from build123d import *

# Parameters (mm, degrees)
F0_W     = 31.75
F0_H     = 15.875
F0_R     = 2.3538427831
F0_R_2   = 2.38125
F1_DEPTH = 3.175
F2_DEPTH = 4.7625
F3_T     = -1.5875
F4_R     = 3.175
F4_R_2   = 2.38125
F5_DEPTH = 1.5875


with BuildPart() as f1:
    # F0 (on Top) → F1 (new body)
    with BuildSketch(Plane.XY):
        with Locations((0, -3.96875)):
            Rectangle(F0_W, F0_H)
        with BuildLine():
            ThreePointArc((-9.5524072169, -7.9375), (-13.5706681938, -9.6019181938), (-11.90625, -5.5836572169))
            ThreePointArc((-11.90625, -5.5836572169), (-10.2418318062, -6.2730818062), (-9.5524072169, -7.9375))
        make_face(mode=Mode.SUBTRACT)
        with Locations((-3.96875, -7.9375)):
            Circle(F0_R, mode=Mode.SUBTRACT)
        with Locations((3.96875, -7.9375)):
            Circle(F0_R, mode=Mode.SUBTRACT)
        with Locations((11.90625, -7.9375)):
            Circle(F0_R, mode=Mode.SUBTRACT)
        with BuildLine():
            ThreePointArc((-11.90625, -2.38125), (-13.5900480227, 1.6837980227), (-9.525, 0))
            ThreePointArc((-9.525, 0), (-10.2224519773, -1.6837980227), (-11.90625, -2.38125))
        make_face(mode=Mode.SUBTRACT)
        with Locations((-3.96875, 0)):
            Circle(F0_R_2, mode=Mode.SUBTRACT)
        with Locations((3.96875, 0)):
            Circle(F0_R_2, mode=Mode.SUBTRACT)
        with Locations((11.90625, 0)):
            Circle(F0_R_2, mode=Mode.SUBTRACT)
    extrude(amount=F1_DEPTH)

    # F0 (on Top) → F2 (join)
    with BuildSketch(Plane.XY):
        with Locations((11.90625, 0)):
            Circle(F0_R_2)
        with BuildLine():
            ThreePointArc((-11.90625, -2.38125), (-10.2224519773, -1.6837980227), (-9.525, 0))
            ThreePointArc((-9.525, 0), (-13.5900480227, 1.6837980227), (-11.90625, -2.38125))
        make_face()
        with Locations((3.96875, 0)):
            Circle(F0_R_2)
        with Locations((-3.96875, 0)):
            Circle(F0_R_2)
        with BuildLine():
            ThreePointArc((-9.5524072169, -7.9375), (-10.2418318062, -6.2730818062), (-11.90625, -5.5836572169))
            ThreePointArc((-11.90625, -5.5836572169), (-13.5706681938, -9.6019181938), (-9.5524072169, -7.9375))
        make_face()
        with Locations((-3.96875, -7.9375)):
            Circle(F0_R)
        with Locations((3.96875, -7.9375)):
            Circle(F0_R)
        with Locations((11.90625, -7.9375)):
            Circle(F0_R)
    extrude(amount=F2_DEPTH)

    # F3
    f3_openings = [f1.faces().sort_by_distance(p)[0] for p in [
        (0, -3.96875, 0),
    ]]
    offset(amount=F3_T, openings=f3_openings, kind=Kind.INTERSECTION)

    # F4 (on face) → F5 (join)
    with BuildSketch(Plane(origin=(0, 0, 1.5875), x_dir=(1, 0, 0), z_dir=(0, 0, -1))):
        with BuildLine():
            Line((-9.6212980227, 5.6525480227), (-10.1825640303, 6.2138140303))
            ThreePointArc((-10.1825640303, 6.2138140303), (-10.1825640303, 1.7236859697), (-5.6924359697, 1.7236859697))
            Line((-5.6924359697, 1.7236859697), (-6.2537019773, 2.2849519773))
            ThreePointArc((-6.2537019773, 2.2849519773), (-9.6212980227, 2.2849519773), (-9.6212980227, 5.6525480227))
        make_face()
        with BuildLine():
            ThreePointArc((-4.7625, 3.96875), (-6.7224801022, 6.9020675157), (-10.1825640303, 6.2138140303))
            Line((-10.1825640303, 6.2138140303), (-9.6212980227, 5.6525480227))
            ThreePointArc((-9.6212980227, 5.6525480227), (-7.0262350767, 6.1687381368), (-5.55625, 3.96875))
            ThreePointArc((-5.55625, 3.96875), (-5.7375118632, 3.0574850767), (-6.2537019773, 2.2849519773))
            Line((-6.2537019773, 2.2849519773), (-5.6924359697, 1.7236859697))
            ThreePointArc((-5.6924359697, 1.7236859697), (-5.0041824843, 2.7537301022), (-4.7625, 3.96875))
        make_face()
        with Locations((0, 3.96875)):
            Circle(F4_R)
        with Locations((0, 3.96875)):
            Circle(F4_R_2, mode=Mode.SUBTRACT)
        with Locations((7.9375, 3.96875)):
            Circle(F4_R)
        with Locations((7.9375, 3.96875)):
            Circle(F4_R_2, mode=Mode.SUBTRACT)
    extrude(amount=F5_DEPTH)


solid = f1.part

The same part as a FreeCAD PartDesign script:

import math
import FreeCAD as App
import Part
import Sketcher
Q = App.Units.Quantity


def faces_at(feature, points):
    """Names of the faces that lie closest to the given points."""
    faces = feature.Shape.Faces
    near = lambda p: min(range(len(faces)), key=lambda i: faces[i].distToShape(Part.Vertex(*p))[0])
    return sorted({f"Face{near(p) + 1}" for p in points})

doc = App.newDocument("Part")
params = doc.addObject("Spreadsheet::Sheet", "Params")
for row, (alias, value) in enumerate([
    ("sketch1_diameter", "0.1875 in"),
    ("sketch1_width", "1.25 in"),
    ("sketch1_height", "0.625 in"),
    ("pad1_length", "0.125 in"),
    ("sketch2_diameter", "0.1875 in"),
    ("pad2_length", "0.1875 in"),
    ("thickness_wall", "0.0625 in"),
    ("sketch3_diameter", "0.25 in"),
    ("sketch3_diameter2", "0.1875 in"),
    ("pad3_length", "0.0625 in"),
], start=1):
    params.set(f"A{row}", alias)
    params.set(f"B{row}", "=" + value)
    params.setAlias(f"B{row}", alias)

body = doc.addObject("PartDesign::Body", "Body")

# Sketch on XY plane
sketch1 = doc.addObject("Sketcher::SketchObject", "Sketch")
body.addObject(sketch1)
sketch1.AttachmentSupport = (doc.XY_Plane, [""])
sketch1.MapMode = "FlatFace"
sketch1.addGeometry([
    Part.LineSegment(App.Vector(-15.9, 4, 0), App.Vector(-15.9, -11.9, 0)),  # 0
    Part.LineSegment(App.Vector(-15.9, -11.9, 0), App.Vector(15.9, -11.9, 0)),  # 1
    Part.LineSegment(App.Vector(15.9, -11.9, 0), App.Vector(15.9, 4, 0)),  # 2
    Part.LineSegment(App.Vector(15.9, 4, 0), App.Vector(-15.9, 4, 0)),  # 3
    Part.ArcOfCircle(Part.Circle(App.Vector(-11.9, -7.9, 0), App.Vector(0, 0, 1), 2.4), math.radians(0), math.radians(90)),  # 4
    Part.ArcOfCircle(Part.Circle(App.Vector(-11.9, -7.9, 0), App.Vector(0, 0, 1), 2.4), math.radians(90), math.radians(360)),  # 5
    Part.Circle(App.Vector(-4, -7.9, 0), App.Vector(0, 0, 1), 2.4),  # 6
    Part.Circle(App.Vector(4, -7.9, 0), App.Vector(0, 0, 1), 2.4),  # 7
    Part.Circle(App.Vector(11.9, -7.9, 0), App.Vector(0, 0, 1), 2.4),  # 8
    Part.Circle(App.Vector(-11.9, 0, 0), App.Vector(0, 0, 1), 2.4),  # 9
    Part.Circle(App.Vector(-4, 0, 0), App.Vector(0, 0, 1), 2.4),  # 10
    Part.Circle(App.Vector(4, 0, 0), App.Vector(0, 0, 1), 2.4),  # 11
    Part.Circle(App.Vector(11.9, 0, 0), App.Vector(0, 0, 1), 2.4),  # 12
], False)
sketch1.addConstraint([
    Sketcher.Constraint("Coincident", 0, 2, 1, 1),
    Sketcher.Constraint("Coincident", 1, 2, 2, 1),
    Sketcher.Constraint("Coincident", 2, 2, 3, 1),
    Sketcher.Constraint("Coincident", 3, 2, 0, 1),
    Sketcher.Constraint("Tangent", 4, 1, 5, 2),
    Sketcher.Constraint("Coincident", 5, 1, 4, 2),
    Sketcher.Constraint("Vertical", 0),
    Sketcher.Constraint("Horizontal", 1),
    Sketcher.Constraint("Vertical", 2),
    Sketcher.Constraint("Horizontal", 3),
    Sketcher.Constraint("Equal", 5, 6),
    Sketcher.Constraint("Equal", 6, 7),
    Sketcher.Constraint("Equal", 7, 8),
    Sketcher.Constraint("Equal", 9, 10),
    Sketcher.Constraint("Equal", 10, 11),
    Sketcher.Constraint("Equal", 11, 12),
    Sketcher.Constraint("Symmetric", 10, 3, 11, 3, -1, 1),
    Sketcher.Constraint("Symmetric", 9, 3, 12, 3, -1, 1),
    Sketcher.Constraint("Symmetric", 6, 3, 7, 3, -2),
    Sketcher.Constraint("Symmetric", 4, 3, 8, 3, -2),
    Sketcher.Constraint("PointOnObject", 9, 3, -1),
    Sketcher.Constraint("PointOnObject", 10, 3, -1),
    Sketcher.Constraint("Horizontal", 5, 3, 6, 3),
    Sketcher.Constraint("Horizontal", 8, 3, 4, 1),
    Sketcher.Constraint("Vertical", 5, 3, 9, 3),
    Sketcher.Constraint("Vertical", 6, 3, 10, 3),
    Sketcher.Constraint("Vertical", 9, 3, 5, 1),
    Sketcher.Constraint("Diameter", 9, Q("0.1875 in")),
    Sketcher.Constraint("DistanceX", 1, 1, 1, 2, Q("1.25 in")),
    Sketcher.Constraint("DistanceY", 0, 2, 0, 1, Q("0.625 in")),
    Sketcher.Constraint("DistanceX", 4, 3, -1, 1, Q("0.46875 in")),
    Sketcher.Constraint("DistanceY", 4, 3, -1, 1, Q("0.3125 in")),
    Sketcher.Constraint("DistanceX", 6, 3, -1, 1, Q("0.15625 in")),
    Sketcher.Constraint("DistanceX", 0, 2, -1, 1, Q("0.625 in")),
    Sketcher.Constraint("DistanceY", 0, 2, -1, 1, Q("0.46875 in")),
    Sketcher.Constraint("Diameter", 6, 4.707686),
])
sketch1.setExpression("Constraints[27]", "Params.sketch1_diameter")
sketch1.setExpression("Constraints[28]", "Params.sketch1_width")
sketch1.setExpression("Constraints[29]", "Params.sketch1_height")
pad1 = doc.addObject("PartDesign::Pad", "Pad")
body.addObject(pad1)
pad1.Profile = sketch1
pad1.setExpression("Length", "Params.pad1_length")

# Sketch on XY plane
sketch2 = doc.addObject("Sketcher::SketchObject", "Sketch001")
body.addObject(sketch2)
sketch2.AttachmentSupport = (doc.XY_Plane, [""])
sketch2.MapMode = "FlatFace"
sketch2.addGeometry([
    Part.Circle(App.Vector(11.9, 0, 0), App.Vector(0, 0, 1), 2.4),  # 0
    Part.Circle(App.Vector(-11.9, 0, 0), App.Vector(0, 0, 1), 2.4),  # 1
    Part.Circle(App.Vector(4, 0, 0), App.Vector(0, 0, 1), 2.4),  # 2
    Part.Circle(App.Vector(-4, 0, 0), App.Vector(0, 0, 1), 2.4),  # 3
    Part.ArcOfCircle(Part.Circle(App.Vector(-11.9, -7.9, 0), App.Vector(0, 0, 1), 2.4), math.radians(0), math.radians(90)),  # 4
    Part.ArcOfCircle(Part.Circle(App.Vector(-11.9, -7.9, 0), App.Vector(0, 0, 1), 2.4), math.radians(90), math.radians(360)),  # 5
    Part.Circle(App.Vector(-4, -7.9, 0), App.Vector(0, 0, 1), 2.4),  # 6
    Part.Circle(App.Vector(4, -7.9, 0), App.Vector(0, 0, 1), 2.4),  # 7
    Part.Circle(App.Vector(11.9, -7.9, 0), App.Vector(0, 0, 1), 2.4),  # 8
], False)
sketch2.addConstraint([
    Sketcher.Constraint("Tangent", 4, 1, 5, 2),
    Sketcher.Constraint("Coincident", 5, 1, 4, 2),
    Sketcher.Constraint("Equal", 0, 1),
    Sketcher.Constraint("Equal", 1, 2),
    Sketcher.Constraint("Equal", 2, 3),
    Sketcher.Constraint("Equal", 5, 6),
    Sketcher.Constraint("Equal", 6, 7),
    Sketcher.Constraint("Equal", 7, 8),
    Sketcher.Constraint("Symmetric", 0, 3, 1, 3, -1, 1),
    Sketcher.Constraint("Symmetric", 2, 3, 3, 3, -1, 1),
    Sketcher.Constraint("Symmetric", 6, 3, 7, 3, -2),
    Sketcher.Constraint("Symmetric", 4, 3, 8, 3, -2),
    Sketcher.Constraint("PointOnObject", 0, 3, -1),
    Sketcher.Constraint("PointOnObject", 2, 3, -1),
    Sketcher.Constraint("Horizontal", 5, 3, 6, 3),
    Sketcher.Constraint("Horizontal", 8, 3, 4, 1),
    Sketcher.Constraint("Vertical", 1, 3, 4, 3),
    Sketcher.Constraint("Vertical", 3, 3, 6, 3),
    Sketcher.Constraint("Vertical", 4, 3, 5, 1),
    Sketcher.Constraint("Diameter", 0, Q("0.1875 in")),
    Sketcher.Constraint("DistanceX", -1, 1, 0, 3, Q("0.46875 in")),
    Sketcher.Constraint("DistanceX", -1, 1, 2, 3, Q("0.15625 in")),
    Sketcher.Constraint("DistanceY", 4, 3, -1, 1, Q("0.3125 in")),
    Sketcher.Constraint("Diameter", 6, 4.707686),
])
sketch2.setExpression("Constraints[19]", "Params.sketch2_diameter")
pad2 = doc.addObject("PartDesign::Pad", "Pad001")
body.addObject(pad2)
pad2.Profile = sketch2
pad2.setExpression("Length", "Params.pad2_length")
doc.recompute()

thickness = doc.addObject("PartDesign::Thickness", "Thickness")
body.addObject(thickness)
thickness.Base = (pad2, faces_at(pad2, [(0, -3.969, 0)]))
thickness.setExpression("Value", "Params.thickness_wall")
thickness.Reversed = True
thickness.Join = "Intersection"

# Sketch on XY plane
sketch3 = doc.addObject("Sketcher::SketchObject", "Sketch002")
body.addObject(sketch3)
sketch3.AttachmentSupport = (doc.XY_Plane, [""])
sketch3.MapMode = "FlatFace"
sketch3.AttachmentOffset = App.Placement(App.Vector(0, 0, 0.0625 * 25.4), App.Rotation())
sketch3.addGeometry([
    Part.ArcOfCircle(Part.Circle(App.Vector(-7.9, -4, 0), App.Vector(0, 0, 1), 3.2), math.radians(45), math.radians(225)),  # 0
    Part.ArcOfCircle(Part.Circle(App.Vector(-7.9, -4, 0), App.Vector(0, 0, 1), 3.2), math.radians(0), math.radians(45)),  # 1
    Part.ArcOfCircle(Part.Circle(App.Vector(-7.9, -4, 0), App.Vector(0, 0, 1), 3.2), math.radians(-135), math.radians(0)),  # 2
    Part.Circle(App.Vector(-7.9, -4, 0), App.Vector(0, 0, 1), 2.4),  # 3
    Part.Circle(App.Vector(0, -4, 0), App.Vector(0, 0, 1), 3.2),  # 4
    Part.Circle(App.Vector(0, -4, 0), App.Vector(0, 0, 1), 2.4),  # 5
    Part.Circle(App.Vector(7.9, -4, 0), App.Vector(0, 0, 1), 3.2),  # 6
    Part.Circle(App.Vector(7.9, -4, 0), App.Vector(0, 0, 1), 2.4),  # 7
], False)
sketch3.addConstraint([
    Sketcher.Constraint("Tangent", 0, 1, 1, 2),
    Sketcher.Constraint("Tangent", 1, 1, 2, 2),
    Sketcher.Constraint("Tangent", 2, 1, 0, 2),
    Sketcher.Constraint("Coincident", 3, 3, 0, 3),
    Sketcher.Constraint("Coincident", 5, 3, 4, 3),
    Sketcher.Constraint("Coincident", 7, 3, 6, 3),
    Sketcher.Constraint("Equal", 2, 4),
    Sketcher.Constraint("Equal", 3, 5),
    Sketcher.Constraint("Equal", 4, 6),
    Sketcher.Constraint("Equal", 5, 7),
    Sketcher.Constraint("Symmetric", 0, 3, 6, 3, -2),
    Sketcher.Constraint("PointOnObject", 4, 3, -2),
    Sketcher.Constraint("Horizontal", 3, 3, 4, 3),
    Sketcher.Constraint("Horizontal", 7, 3, 1, 1),
    Sketcher.Constraint("Diameter", 4, Q("0.25 in")),
    Sketcher.Constraint("Diameter", 3, Q("0.1875 in")),
    Sketcher.Constraint("DistanceX", 0, 3, -1, 1, Q("0.3125 in")),
    Sketcher.Constraint("DistanceY", 0, 3, -1, 1, Q("0.15625 in")),
    Sketcher.Constraint("DistanceX", 0, 1, -1, 1, 5.692436),
    Sketcher.Constraint("DistanceX", 2, 1, -1, 1, 10.182564),
])
sketch3.setExpression("Constraints[14]", "Params.sketch3_diameter")
sketch3.setExpression("Constraints[15]", "Params.sketch3_diameter2")
pad3 = doc.addObject("PartDesign::Pad", "Pad002")
body.addObject(pad3)
pad3.Profile = sketch3
pad3.setExpression("Length", "Params.pad3_length")
pad3.Reversed = True

doc.recompute()
